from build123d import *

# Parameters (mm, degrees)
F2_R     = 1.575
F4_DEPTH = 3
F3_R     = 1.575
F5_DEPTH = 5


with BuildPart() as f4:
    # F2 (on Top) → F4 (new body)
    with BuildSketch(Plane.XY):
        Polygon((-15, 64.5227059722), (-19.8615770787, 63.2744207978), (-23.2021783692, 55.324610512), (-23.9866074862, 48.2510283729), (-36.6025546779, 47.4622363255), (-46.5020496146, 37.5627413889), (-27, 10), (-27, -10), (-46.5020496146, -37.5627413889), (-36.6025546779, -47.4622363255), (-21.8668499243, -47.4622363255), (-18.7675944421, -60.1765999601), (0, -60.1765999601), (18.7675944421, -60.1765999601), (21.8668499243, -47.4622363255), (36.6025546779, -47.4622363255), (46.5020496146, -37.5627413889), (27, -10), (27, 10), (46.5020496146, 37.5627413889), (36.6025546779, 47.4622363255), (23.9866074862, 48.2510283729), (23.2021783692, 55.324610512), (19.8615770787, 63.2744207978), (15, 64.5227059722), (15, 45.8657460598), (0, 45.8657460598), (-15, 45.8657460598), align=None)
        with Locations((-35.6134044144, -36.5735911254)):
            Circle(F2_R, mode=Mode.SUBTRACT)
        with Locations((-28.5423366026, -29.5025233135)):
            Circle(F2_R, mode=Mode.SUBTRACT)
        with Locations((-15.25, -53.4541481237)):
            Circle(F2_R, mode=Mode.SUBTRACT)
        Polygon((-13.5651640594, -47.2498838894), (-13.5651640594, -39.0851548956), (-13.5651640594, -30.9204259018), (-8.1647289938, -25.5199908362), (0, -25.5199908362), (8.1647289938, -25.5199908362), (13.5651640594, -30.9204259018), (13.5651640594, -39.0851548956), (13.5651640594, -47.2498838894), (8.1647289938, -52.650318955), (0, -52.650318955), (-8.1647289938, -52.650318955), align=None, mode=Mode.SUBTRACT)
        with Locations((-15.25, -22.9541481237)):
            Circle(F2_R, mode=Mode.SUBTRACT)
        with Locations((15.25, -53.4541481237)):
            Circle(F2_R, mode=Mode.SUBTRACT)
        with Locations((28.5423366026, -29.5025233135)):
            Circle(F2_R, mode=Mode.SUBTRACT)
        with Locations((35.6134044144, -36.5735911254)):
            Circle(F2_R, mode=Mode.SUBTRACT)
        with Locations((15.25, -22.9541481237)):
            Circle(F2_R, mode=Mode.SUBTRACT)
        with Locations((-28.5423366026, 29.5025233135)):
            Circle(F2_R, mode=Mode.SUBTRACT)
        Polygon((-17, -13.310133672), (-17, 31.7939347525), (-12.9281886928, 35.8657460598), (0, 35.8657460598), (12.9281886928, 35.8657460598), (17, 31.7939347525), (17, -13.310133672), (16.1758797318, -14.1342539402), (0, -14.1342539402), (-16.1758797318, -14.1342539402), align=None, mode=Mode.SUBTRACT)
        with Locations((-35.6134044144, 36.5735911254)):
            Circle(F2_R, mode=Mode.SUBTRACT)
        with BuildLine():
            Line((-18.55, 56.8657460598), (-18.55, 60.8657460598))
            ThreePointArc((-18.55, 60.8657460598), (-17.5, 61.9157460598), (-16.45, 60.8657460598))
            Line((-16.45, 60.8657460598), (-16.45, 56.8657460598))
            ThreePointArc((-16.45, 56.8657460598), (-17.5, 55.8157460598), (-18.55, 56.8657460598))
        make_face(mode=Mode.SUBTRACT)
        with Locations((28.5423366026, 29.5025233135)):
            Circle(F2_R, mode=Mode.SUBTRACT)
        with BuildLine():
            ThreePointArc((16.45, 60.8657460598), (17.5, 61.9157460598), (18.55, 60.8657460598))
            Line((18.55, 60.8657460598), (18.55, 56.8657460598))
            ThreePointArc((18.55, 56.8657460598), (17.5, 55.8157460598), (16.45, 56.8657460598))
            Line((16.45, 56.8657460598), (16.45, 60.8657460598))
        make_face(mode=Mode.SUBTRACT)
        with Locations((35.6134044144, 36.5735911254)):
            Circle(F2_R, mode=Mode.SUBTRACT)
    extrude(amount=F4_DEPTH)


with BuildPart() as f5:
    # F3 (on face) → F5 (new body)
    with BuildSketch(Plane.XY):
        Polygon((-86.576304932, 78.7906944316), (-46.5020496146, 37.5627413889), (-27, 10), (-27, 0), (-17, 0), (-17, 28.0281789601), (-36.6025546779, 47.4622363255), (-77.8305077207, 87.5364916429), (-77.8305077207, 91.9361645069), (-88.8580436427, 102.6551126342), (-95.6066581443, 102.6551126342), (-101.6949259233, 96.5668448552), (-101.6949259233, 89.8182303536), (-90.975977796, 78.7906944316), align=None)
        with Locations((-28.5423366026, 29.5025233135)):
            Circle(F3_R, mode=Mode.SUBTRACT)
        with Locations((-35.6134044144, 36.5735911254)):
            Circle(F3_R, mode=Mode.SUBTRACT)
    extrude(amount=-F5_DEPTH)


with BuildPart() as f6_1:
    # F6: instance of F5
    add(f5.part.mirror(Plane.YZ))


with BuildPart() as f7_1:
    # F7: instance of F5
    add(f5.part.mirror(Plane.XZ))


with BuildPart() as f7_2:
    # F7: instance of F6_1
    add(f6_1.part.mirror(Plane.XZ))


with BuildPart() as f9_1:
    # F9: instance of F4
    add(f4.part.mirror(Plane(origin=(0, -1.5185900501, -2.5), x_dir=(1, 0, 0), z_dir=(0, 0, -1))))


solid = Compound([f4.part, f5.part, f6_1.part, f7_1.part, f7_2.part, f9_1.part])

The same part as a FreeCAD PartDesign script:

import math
import FreeCAD as App
import Part
import Sketcher
Q = App.Units.Quantity


def add_polygon(sketch, points):
    """Adds a closed chain of lines whose ends are joined by coincident constraints."""
    first, n = sketch.GeometryCount, len(points)
    for a, b in zip(points, points[1:] + points[:1]):
        sketch.addGeometry(Part.LineSegment(App.Vector(*a, 0), App.Vector(*b, 0)), False)
    for i in range(n):
        sketch.addConstraint(Sketcher.Constraint("Coincident", first + i, 2, first + (i + 1) % n, 1))

doc = App.newDocument("Part")
body = doc.addObject("PartDesign::Body", "Body")

# Sketch on XY plane
sketch1 = body.newObject("Sketcher::SketchObject", "Sketch")
sketch1.AttachmentSupport = (doc.getObject("XY_Plane"), [""])
sketch1.MapMode = "FlatFace"
add_polygon(sketch1, [(-15, 64.522706), (-19.861577, 63.274421), (-23.202178, 55.324611), (-23.986607, 48.251028), (-36.602555, 47.462236), (-46.50205, 37.562741), (-27, 10), (-27, -10), (-46.50205, -37.562741), (-36.602555, -47.462236), (-21.86685, -47.462236), (-18.767594, -60.1766), (18.767594, -60.1766), (21.86685, -47.462236), (36.602555, -47.462236), (46.50205, -37.562741), (27, -10), (27, 10), (46.50205, 37.562741), (36.602555, 47.462236), (23.986607, 48.251028), (23.202178, 55.324611), (19.861577, 63.274421), (15, 64.522706), (15, 45.865746), (-15, 45.865746)])  # lines 0-25
sketch1.addGeometry(Part.Circle(App.Vector(-35.613404, -36.573591, 0), App.Vector(0, 0, 1), 1.575), False)  # 26
sketch1.addGeometry(Part.Circle(App.Vector(-28.542337, -29.502523, 0), App.Vector(0, 0, 1), 1.575), False)  # 27
sketch1.addGeometry(Part.Circle(App.Vector(-15.25, -53.454148, 0), App.Vector(0, 0, 1), 1.575), False)  # 28
sketch1.addGeometry(Part.Circle(App.Vector(-15.25, -22.954148, 0), App.Vector(0, 0, 1), 1.575), False)  # 29
sketch1.addGeometry(Part.Circle(App.Vector(15.25, -53.454148, 0), App.Vector(0, 0, 1), 1.575), False)  # 30
add_polygon(sketch1, [(-8.164729, -52.650319), (-13.565164, -47.249884), (-13.565164, -30.920426), (-8.164729, -25.519991), (8.164729, -25.519991), (13.565164, -30.920426), (13.565164, -47.249884), (8.164729, -52.650319)])  # lines 31-38
sketch1.addGeometry(Part.Circle(App.Vector(35.613404, -36.573591, 0), App.Vector(0, 0, 1), 1.575), False)  # 39
sketch1.addGeometry(Part.Circle(App.Vector(28.542337, -29.502523, 0), App.Vector(0, 0, 1), 1.575), False)  # 40
sketch1.addGeometry(Part.Circle(App.Vector(15.25, -22.954148, 0), App.Vector(0, 0, 1), 1.575), False)  # 41
sketch1.addGeometry(Part.Circle(App.Vector(-28.542337, 29.502523, 0), App.Vector(0, 0, 1), 1.575), False)  # 42
sketch1.addGeometry(Part.Circle(App.Vector(-35.613404, 36.573591, 0), App.Vector(0, 0, 1), 1.575), False)  # 43
sketch1.addGeometry(Part.ArcOfCircle(Part.Circle(App.Vector(-17.5, 56.865746, 0), App.Vector(0, 0, 1), 1.05), math.radians(180), math.radians(360)), False)  # 44
sketch1.addGeometry(Part.LineSegment(App.Vector(-18.55, 56.865746, 0), App.Vector(-18.55, 60.865746, 0)), False)  # 45
sketch1.addGeometry(Part.ArcOfCircle(Part.Circle(App.Vector(-17.5, 60.865746, 0), App.Vector(0, 0, 1), 1.05), math.radians(0), math.radians(180)), False)  # 46
sketch1.addGeometry(Part.LineSegment(App.Vector(-16.45, 60.865746, 0), App.Vector(-16.45, 56.865746, 0)), False)  # 47
add_polygon(sketch1, [(-16.17588, -14.134254), (-17, -13.310134), (-17, 31.793935), (-12.928189, 35.865746), (12.928189, 35.865746), (17, 31.793935), (17, -13.310134), (16.17588, -14.134254)])  # lines 48-55
sketch1.addGeometry(Part.Circle(App.Vector(28.542337, 29.502523, 0), App.Vector(0, 0, 1), 1.575), False)  # 56
sketch1.addGeometry(Part.LineSegment(App.Vector(16.45, 56.865746, 0), App.Vector(16.45, 60.865746, 0)), False)  # 57
sketch1.addGeometry(Part.ArcOfCircle(Part.Circle(App.Vector(17.5, 60.865746, 0), App.Vector(0, 0, 1), 1.05), math.radians(0), math.radians(180)), False)  # 58
sketch1.addGeometry(Part.LineSegment(App.Vector(18.55, 60.865746, 0), App.Vector(18.55, 56.865746, 0)), False)  # 59
sketch1.addGeometry(Part.ArcOfCircle(Part.Circle(App.Vector(17.5, 56.865746, 0), App.Vector(0, 0, 1), 1.05), math.radians(180), math.radians(360)), False)  # 60
sketch1.addGeometry(Part.Circle(App.Vector(35.613404, 36.573591, 0), App.Vector(0, 0, 1), 1.575), False)  # 61
sketch1.addConstraint(Sketcher.Constraint("Tangent", 44, 1, 45, 1))
sketch1.addConstraint(Sketcher.Constraint("Tangent", 45, 2, 46, 2))
sketch1.addConstraint(Sketcher.Constraint("Tangent", 46, 1, 47, 1))
sketch1.addConstraint(Sketcher.Constraint("Tangent", 47, 2, 44, 2))
sketch1.addConstraint(Sketcher.Constraint("Tangent", 57, 2, 58, 2))
sketch1.addConstraint(Sketcher.Constraint("Tangent", 58, 1, 59, 1))
sketch1.addConstraint(Sketcher.Constraint("Tangent", 59, 2, 60, 2))
sketch1.addConstraint(Sketcher.Constraint("Tangent", 60, 1, 57, 1))
sketch1.addConstraint(Sketcher.Constraint("Vertical", 6))
sketch1.addConstraint(Sketcher.Constraint("Horizontal", 9))
sketch1.addConstraint(Sketcher.Constraint("Horizontal", 11))
sketch1.addConstraint(Sketcher.Constraint("Horizontal", 13))
sketch1.addConstraint(Sketcher.Constraint("Vertical", 16))
sketch1.addConstraint(Sketcher.Constraint("Vertical", 23))
sketch1.addConstraint(Sketcher.Constraint("Horizontal", 24))
sketch1.addConstraint(Sketcher.Constraint("Vertical", 25))
sketch1.addConstraint(Sketcher.Constraint("Vertical", 32))
sketch1.addConstraint(Sketcher.Constraint("Horizontal", 34))
sketch1.addConstraint(Sketcher.Constraint("Vertical", 36))
sketch1.addConstraint(Sketcher.Constraint("Horizontal", 38))
sketch1.addConstraint(Sketcher.Constraint("Vertical", 45))
sketch1.addConstraint(Sketcher.Constraint("Vertical", 47))
sketch1.addConstraint(Sketcher.Constraint("Vertical", 49))
sketch1.addConstraint(Sketcher.Constraint("Horizontal", 51))
sketch1.addConstraint(Sketcher.Constraint("Vertical", 53))
sketch1.addConstraint(Sketcher.Constraint("Horizontal", 55))
sketch1.addConstraint(Sketcher.Constraint("Vertical", 57))
sketch1.addConstraint(Sketcher.Constraint("Vertical", 59))
sketch1.addConstraint(Sketcher.Constraint("Equal", 26, 27))
sketch1.addConstraint(Sketcher.Constraint("Equal", 27, 28))
sketch1.addConstraint(Sketcher.Constraint("Equal", 28, 29))
sketch1.addConstraint(Sketcher.Constraint("Equal", 29, 30))
sketch1.addConstraint(Sketcher.Constraint("Equal", 30, 39))
sketch1.addConstraint(Sketcher.Constraint("Equal", 39, 40))
sketch1.addConstraint(Sketcher.Constraint("Equal", 40, 41))
sketch1.addConstraint(Sketcher.Constraint("Equal", 41, 42))
sketch1.addConstraint(Sketcher.Constraint("Equal", 42, 43))
sketch1.addConstraint(Sketcher.Constraint("Equal", 43, 56))
sketch1.addConstraint(Sketcher.Constraint("Equal", 46, 58))
sketch1.addConstraint(Sketcher.Constraint("Equal", 56, 61))
sketch1.addConstraint(Sketcher.Constraint("Symmetric", 40, 3, 42, 3, -1, 1))
sketch1.addConstraint(Sketcher.Constraint("Symmetric", 39, 3, 43, 3, -1, 1))
sketch1.addConstraint(Sketcher.Constraint("Symmetric", 27, 3, 56, 3, -1, 1))
sketch1.addConstraint(Sketcher.Constraint("Symmetric", 26, 3, 61, 3, -1, 1))
sketch1.addConstraint(Sketcher.Constraint("Symmetric", 3, 2, 13, 2, -1, 1))
sketch1.addConstraint(Sketcher.Constraint("Symmetric", 4, 2, 14, 2, -1, 1))
sketch1.addConstraint(Sketcher.Constraint("Symmetric", 5, 2, 15, 2, -1, 1))
sketch1.addConstraint(Sketcher.Constraint("Symmetric", 7, 2, 17, 2, -1, 1))
sketch1.addConstraint(Sketcher.Constraint("Symmetric", 8, 2, 18, 2, -1, 1))
sketch1.addConstraint(Sketcher.Constraint("Symmetric", 28, 3, 30, 3, -2))
sketch1.addConstraint(Sketcher.Constraint("Symmetric", 26, 3, 39, 3, -2))
sketch1.addConstraint(Sketcher.Constraint("Symmetric", 27, 3, 40, 3, -2))
sketch1.addConstraint(Sketcher.Constraint("Symmetric", 29, 3, 41, 3, -2))
sketch1.addConstraint(Sketcher.Constraint("Symmetric", 46, 3, 58, 3, -2))
sketch1.addConstraint(Sketcher.Constraint("Symmetric", 9, 2, 12, 2, -2))
sketch1.addConstraint(Sketcher.Constraint("Symmetric", 7, 2, 14, 2, -2))
sketch1.addConstraint(Sketcher.Constraint("Symmetric", 2, 2, 19, 2, -2))
sketch1.addConstraint(Sketcher.Constraint("Symmetric", 1, 2, 20, 2, -2))
sketch1.addConstraint(Sketcher.Constraint("Symmetric", 0, 2, 21, 2, -2))
sketch1.addConstraint(Sketcher.Constraint("Symmetric", 22, 2, 25, 2, -2))
sketch1.addConstraint(Sketcher.Constraint("Symmetric", 32, 2, 35, 2, -2))
sketch1.addConstraint(Sketcher.Constraint("Symmetric", 49, 2, 52, 2, -2))
sketch1.addConstraint(Sketcher.Constraint("Perpendicular", 4, 8))
sketch1.addConstraint(Sketcher.Constraint("Parallel", 7, 17))
sketch1.addConstraint(Sketcher.Constraint("Parallel", 18, 31))
sketch1.addConstraint(Sketcher.Constraint("Perpendicular", 31, 33))
sketch1.addConstraint(Sketcher.Constraint("Perpendicular", 33, 35))
sketch1.addConstraint(Sketcher.Constraint("Perpendicular", 35, 37))
sketch1.addConstraint(Sketcher.Constraint("Perpendicular", 37, 48))
sketch1.addConstraint(Sketcher.Constraint("Perpendicular", 48, 50))
sketch1.addConstraint(Sketcher.Constraint("Perpendicular", 50, 52))
sketch1.addConstraint(Sketcher.Constraint("Perpendicular", 52, 54))
sketch1.addConstraint(Sketcher.Constraint("Horizontal", 44, 3, 60, 3))
sketch1.addConstraint(Sketcher.Constraint("Horizontal", 6, 2, 15, 2))
sketch1.addConstraint(Sketcher.Constraint("Horizontal", 31, 2, 36, 2))
sketch1.addConstraint(Sketcher.Constraint("Horizontal", 48, 2, 53, 2))
sketch1.addConstraint(Sketcher.Constraint("Vertical", 28, 3, 29, 3))
sketch1.addConstraint(Sketcher.Constraint("Vertical", 3, 2, 8, 2))
sketch1.addConstraint(Sketcher.Constraint("Vertical", 34, 2, 37, 2))
sketch1.addConstraint(Sketcher.Constraint("Equal", 38, 32))
sketch1.addConstraint(Sketcher.Constraint("Equal", 10, 12))
sketch1.addConstraint(Sketcher.Constraint("Diameter", 26, Q("3.15 mm")))
sketch1.addConstraint(Sketcher.Constraint("DistanceX", 24, 2, 24, 1, Q("30 mm")))
sketch1.addConstraint(Sketcher.Constraint("DistanceY", 6, 2, 6, 1, Q("20 mm")))
sketch1.addConstraint(Sketcher.Constraint("DistanceY", 45, 1, 45, 2, Q("4 mm")))
sketch1.addConstraint(Sketcher.Constraint("Radius", 44, Q("1.05 mm")))
sketch1.addConstraint(Sketcher.Constraint("Distance", 4, Q("14 mm")))
sketch1.addConstraint(Sketcher.Constraint("DistanceX", 5, 2, -1, 1, Q("27 mm")))
sketch1.addConstraint(Sketcher.Constraint("DistanceX", 48, 2, -1, 1, Q("17 mm")))
sketch1.addConstraint(Sketcher.Constraint("DistanceX", 44, 3, -1, 1, Q("17.5 mm")))
sketch1.addConstraint(Sketcher.Constraint("DistanceX", 28, 3, -1, 1, Q("15.25 mm")))
sketch1.addConstraint(Sketcher.Constraint("Distance", 5, Q("33.764399 mm")))
sketch1.addConstraint(Sketcher.Constraint("DistanceX", 11, 1, 11, 2, Q("37.535189 mm")))
sketch1.addConstraint(Sketcher.Constraint("DistanceX", 55, 2, 55, 1, Q("32.351759 mm")))
sketch1.addConstraint(Sketcher.Constraint("DistanceY", 23, 2, 23, 1, Q("18.65696 mm")))
sketch1.addConstraint(Sketcher.Constraint("DistanceY", 49, 1, 49, 2, Q("45.104068 mm")))
sketch1.addConstraint(Sketcher.Constraint("DistanceY", 10, 2, -1, 1, Q("60.1766 mm")))
sketch1.addConstraint(Sketcher.Constraint("Distance", 10, Q("13.086651 mm")))
sketch1.addConstraint(Sketcher.Constraint("Distance", 31, Q("7.637369 mm")))
sketch1.addConstraint(Sketcher.Constraint("Distance", 50, Q("5.758411 mm")))
sketch1.addConstraint(Sketcher.Constraint("DistanceX", 9, 1, 9, 2, Q("14.735705 mm")))
sketch1.addConstraint(Sketcher.Constraint("DistanceX", 34, 1, 34, 2, Q("16.329458 mm")))
sketch1.addConstraint(Sketcher.Constraint("DistanceY", 26, 3, -1, 1, Q("36.573591 mm")))
sketch1.addConstraint(Sketcher.Constraint("DistanceY", 28, 3, -1, 1, Q("53.454148 mm")))
sketch1.addConstraint(Sketcher.Constraint("DistanceY", 29, 3, -1, 1, Q("22.954148 mm")))
sketch1.addConstraint(Sketcher.Constraint("DistanceY", -1, 1, 0, 2, Q("63.274421 mm")))
sketch1.addConstraint(Sketcher.Constraint("DistanceX", 1, 2, -1, 1, Q("23.202178 mm")))
sketch1.addConstraint(Sketcher.Constraint("DistanceY", -1, 1, 1, 2, Q("55.324611 mm")))
sketch1.addConstraint(Sketcher.Constraint("DistanceY", -1, 1, 2, 2, Q("48.251028 mm")))
sketch1.addConstraint(Sketcher.Constraint("DistanceY", 33, 2, -1, 1, Q("25.519991 mm")))
sketch1.addConstraint(Sketcher.Constraint("Distance", 0, Q("5.019278 mm")))
sketch1.addConstraint(Sketcher.Constraint("Distance", 1, Q("8.623172 mm")))
sketch1.addConstraint(Sketcher.Constraint("Distance", 2, Q("7.116944 mm")))
sketch1.addConstraint(Sketcher.Constraint("DistanceX", 26, 3, -1, 1, Q("35.613404 mm")))
sketch1.addConstraint(Sketcher.Constraint("DistanceX", 27, 3, -1, 1, Q("28.542337 mm")))
sketch1.addConstraint(Sketcher.Constraint("DistanceY", 27, 3, -1, 1, Q("29.502523 mm")))
sketch1.addConstraint(Sketcher.Constraint("DistanceY", -1, 1, 44, 3, Q("56.865746 mm")))
sketch1.addConstraint(Sketcher.Constraint("DistanceY", 48, 2, -1, 1, Q("13.310134 mm")))
pad1 = body.newObject("PartDesign::Pad", "Pad")
pad1.Profile = sketch1
pad1.Length = 3
body2 = doc.addObject("PartDesign::Body", "Body001")

# Sketch on XY plane
sketch2 = body2.newObject("Sketcher::SketchObject", "Sketch001")
sketch2.AttachmentSupport = (doc.getObject("XY_Plane001"), [""])
sketch2.MapMode = "FlatFace"
add_polygon(sketch2, [(-86.576305, 78.790694), (-46.50205, 37.562741), (-27, 10), (-27, 0), (-17, 0), (-17, 28.028179), (-36.602555, 47.462236), (-77.830508, 87.536492), (-77.830508, 91.936165), (-88.858044, 102.655113), (-95.606658, 102.655113), (-101.694926, 96.566845), (-101.694926, 89.81823), (-90.975978, 78.790694)])  # lines 0-13
sketch2.addGeometry(Part.Circle(App.Vector(-28.542337, 29.502523, 0), App.Vector(0, 0, 1), 1.575), False)  # 14
sketch2.addGeometry(Part.Circle(App.Vector(-35.613404, 36.573591, 0), App.Vector(0, 0, 1), 1.575), False)  # 15
sketch2.addConstraint(Sketcher.Constraint("Vertical", 2))
sketch2.addConstraint(Sketcher.Constraint("Horizontal", 3))
sketch2.addConstraint(Sketcher.Constraint("Vertical", 4))
sketch2.addConstraint(Sketcher.Constraint("Vertical", 7))
sketch2.addConstraint(Sketcher.Constraint("Horizontal", 9))
sketch2.addConstraint(Sketcher.Constraint("Vertical", 11))
sketch2.addConstraint(Sketcher.Constraint("Horizontal", 13))
sketch2.addConstraint(Sketcher.Constraint("Equal", 14, 15))
sketch2.addConstraint(Sketcher.Constraint("PointOnObject", 2, 2, -1))
sketch2.addConstraint(Sketcher.Constraint("Parallel", 6, 8))
sketch2.addConstraint(Sketcher.Constraint("Parallel", 0, 12))
sketch2.addConstraint(Sketcher.Constraint("Equal", 3, 2))
sketch2.addConstraint(Sketcher.Constraint("Equal", 13, 7))
sketch2.addConstraint(Sketcher.Constraint("Equal", 9, 11))
sketch2.addConstraint(Sketcher.Constraint("Equal", 0, 6))
sketch2.addConstraint(Sketcher.Constraint("Equal", 8, 12))
sketch2.addConstraint(Sketcher.Constraint("Diameter", 14, Q("3.15 mm")))
sketch2.addConstraint(Sketcher.Constraint("DistanceX", 3, 1, 3, 2, Q("10 mm")))
sketch2.addConstraint(Sketcher.Constraint("Angle", 10, Q("-135 deg")))
sketch2.addConstraint(Sketcher.Constraint("DistanceX", 1, 2, -1, 1, Q("27 mm")))
sketch2.addConstraint(Sketcher.Constraint("Distance", 1, Q("33.764399 mm")))
sketch2.addConstraint(Sketcher.Constraint("DistanceY", 4, 1, 4, 2, Q("28.028179 mm")))
sketch2.addConstraint(Sketcher.Constraint("DistanceY", 15, 3, 6, 2, Q("50.962901 mm")))
sketch2.addConstraint(Sketcher.Constraint("Distance", 0, Q("57.495131 mm")))
sketch2.addConstraint(Sketcher.Constraint("Distance", 5, Q("27.60331 mm")))
sketch2.addConstraint(Sketcher.Constraint("Distance", 10, Q("8.610111 mm")))
sketch2.addConstraint(Sketcher.Constraint("DistanceX", 9, 2, 9, 1, Q("6.748615 mm")))
sketch2.addConstraint(Sketcher.Constraint("DistanceX", 13, 1, 13, 2, Q("4.399673 mm")))
sketch2.addConstraint(Sketcher.Constraint("DistanceY", -1, 1, 15, 3, Q("36.573591 mm")))
sketch2.addConstraint(Sketcher.Constraint("DistanceX", 0, 2, -1, 1, Q("46.50205 mm")))
sketch2.addConstraint(Sketcher.Constraint("DistanceX", 9, 2, -1, 1, Q("95.606658 mm")))
sketch2.addConstraint(Sketcher.Constraint("DistanceY", 14, 3, 0, 2, Q("8.060218 mm")))
sketch2.addConstraint(Sketcher.Constraint("DistanceX", 5, 2, 15, 3, Q("0.98915 mm")))
sketch2.addConstraint(Sketcher.Constraint("DistanceX", 5, 2, 14, 3, Q("8.060218 mm")))
pad2 = body2.newObject("PartDesign::Pad", "Pad001")
pad2.Profile = sketch2
pad2.Length = 5
pad2.Reversed = True
body3 = doc.addObject("PartDesign::Body", "Body002")
doc.recompute()

mirroring = doc.addObject("Part::Mirroring", "Mirroring")
mirroring.Source = body2
mirroring.Base = App.Vector(0, 0, 0)
mirroring.Normal = App.Vector(1, 0, 0)
body3.BaseFeature = mirroring
doc.recompute()
body4 = doc.addObject("PartDesign::Body", "Body003")
doc.recompute()

mirroring2 = doc.addObject("Part::Mirroring", "Mirroring001")
mirroring2.Source = body2
mirroring2.Base = App.Vector(0, 0, 0)
mirroring2.Normal = App.Vector(0, -1, 0)
body4.BaseFeature = mirroring2
doc.recompute()
body5 = doc.addObject("PartDesign::Body", "Body004")
doc.recompute()

mirroring3 = doc.addObject("Part::Mirroring", "Mirroring002")
mirroring3.Source = body3
mirroring3.Base = App.Vector(0, 0, 0)
mirroring3.Normal = App.Vector(0, -1, 0)
body5.BaseFeature = mirroring3
doc.recompute()
body6 = doc.addObject("PartDesign::Body", "Body005")
doc.recompute()

mirroring4 = doc.addObject("Part::Mirroring", "Mirroring003")
mirroring4.Source = body
mirroring4.Base = App.Vector(0, -1.51859, -2.5)
mirroring4.Normal = App.Vector(0, 0, -1)
body6.BaseFeature = mirroring4
doc.recompute()
mirroring.Visibility = False
mirroring2.Visibility = False
mirroring3.Visibility = False
mirroring4.Visibility = False

doc.recompute()
